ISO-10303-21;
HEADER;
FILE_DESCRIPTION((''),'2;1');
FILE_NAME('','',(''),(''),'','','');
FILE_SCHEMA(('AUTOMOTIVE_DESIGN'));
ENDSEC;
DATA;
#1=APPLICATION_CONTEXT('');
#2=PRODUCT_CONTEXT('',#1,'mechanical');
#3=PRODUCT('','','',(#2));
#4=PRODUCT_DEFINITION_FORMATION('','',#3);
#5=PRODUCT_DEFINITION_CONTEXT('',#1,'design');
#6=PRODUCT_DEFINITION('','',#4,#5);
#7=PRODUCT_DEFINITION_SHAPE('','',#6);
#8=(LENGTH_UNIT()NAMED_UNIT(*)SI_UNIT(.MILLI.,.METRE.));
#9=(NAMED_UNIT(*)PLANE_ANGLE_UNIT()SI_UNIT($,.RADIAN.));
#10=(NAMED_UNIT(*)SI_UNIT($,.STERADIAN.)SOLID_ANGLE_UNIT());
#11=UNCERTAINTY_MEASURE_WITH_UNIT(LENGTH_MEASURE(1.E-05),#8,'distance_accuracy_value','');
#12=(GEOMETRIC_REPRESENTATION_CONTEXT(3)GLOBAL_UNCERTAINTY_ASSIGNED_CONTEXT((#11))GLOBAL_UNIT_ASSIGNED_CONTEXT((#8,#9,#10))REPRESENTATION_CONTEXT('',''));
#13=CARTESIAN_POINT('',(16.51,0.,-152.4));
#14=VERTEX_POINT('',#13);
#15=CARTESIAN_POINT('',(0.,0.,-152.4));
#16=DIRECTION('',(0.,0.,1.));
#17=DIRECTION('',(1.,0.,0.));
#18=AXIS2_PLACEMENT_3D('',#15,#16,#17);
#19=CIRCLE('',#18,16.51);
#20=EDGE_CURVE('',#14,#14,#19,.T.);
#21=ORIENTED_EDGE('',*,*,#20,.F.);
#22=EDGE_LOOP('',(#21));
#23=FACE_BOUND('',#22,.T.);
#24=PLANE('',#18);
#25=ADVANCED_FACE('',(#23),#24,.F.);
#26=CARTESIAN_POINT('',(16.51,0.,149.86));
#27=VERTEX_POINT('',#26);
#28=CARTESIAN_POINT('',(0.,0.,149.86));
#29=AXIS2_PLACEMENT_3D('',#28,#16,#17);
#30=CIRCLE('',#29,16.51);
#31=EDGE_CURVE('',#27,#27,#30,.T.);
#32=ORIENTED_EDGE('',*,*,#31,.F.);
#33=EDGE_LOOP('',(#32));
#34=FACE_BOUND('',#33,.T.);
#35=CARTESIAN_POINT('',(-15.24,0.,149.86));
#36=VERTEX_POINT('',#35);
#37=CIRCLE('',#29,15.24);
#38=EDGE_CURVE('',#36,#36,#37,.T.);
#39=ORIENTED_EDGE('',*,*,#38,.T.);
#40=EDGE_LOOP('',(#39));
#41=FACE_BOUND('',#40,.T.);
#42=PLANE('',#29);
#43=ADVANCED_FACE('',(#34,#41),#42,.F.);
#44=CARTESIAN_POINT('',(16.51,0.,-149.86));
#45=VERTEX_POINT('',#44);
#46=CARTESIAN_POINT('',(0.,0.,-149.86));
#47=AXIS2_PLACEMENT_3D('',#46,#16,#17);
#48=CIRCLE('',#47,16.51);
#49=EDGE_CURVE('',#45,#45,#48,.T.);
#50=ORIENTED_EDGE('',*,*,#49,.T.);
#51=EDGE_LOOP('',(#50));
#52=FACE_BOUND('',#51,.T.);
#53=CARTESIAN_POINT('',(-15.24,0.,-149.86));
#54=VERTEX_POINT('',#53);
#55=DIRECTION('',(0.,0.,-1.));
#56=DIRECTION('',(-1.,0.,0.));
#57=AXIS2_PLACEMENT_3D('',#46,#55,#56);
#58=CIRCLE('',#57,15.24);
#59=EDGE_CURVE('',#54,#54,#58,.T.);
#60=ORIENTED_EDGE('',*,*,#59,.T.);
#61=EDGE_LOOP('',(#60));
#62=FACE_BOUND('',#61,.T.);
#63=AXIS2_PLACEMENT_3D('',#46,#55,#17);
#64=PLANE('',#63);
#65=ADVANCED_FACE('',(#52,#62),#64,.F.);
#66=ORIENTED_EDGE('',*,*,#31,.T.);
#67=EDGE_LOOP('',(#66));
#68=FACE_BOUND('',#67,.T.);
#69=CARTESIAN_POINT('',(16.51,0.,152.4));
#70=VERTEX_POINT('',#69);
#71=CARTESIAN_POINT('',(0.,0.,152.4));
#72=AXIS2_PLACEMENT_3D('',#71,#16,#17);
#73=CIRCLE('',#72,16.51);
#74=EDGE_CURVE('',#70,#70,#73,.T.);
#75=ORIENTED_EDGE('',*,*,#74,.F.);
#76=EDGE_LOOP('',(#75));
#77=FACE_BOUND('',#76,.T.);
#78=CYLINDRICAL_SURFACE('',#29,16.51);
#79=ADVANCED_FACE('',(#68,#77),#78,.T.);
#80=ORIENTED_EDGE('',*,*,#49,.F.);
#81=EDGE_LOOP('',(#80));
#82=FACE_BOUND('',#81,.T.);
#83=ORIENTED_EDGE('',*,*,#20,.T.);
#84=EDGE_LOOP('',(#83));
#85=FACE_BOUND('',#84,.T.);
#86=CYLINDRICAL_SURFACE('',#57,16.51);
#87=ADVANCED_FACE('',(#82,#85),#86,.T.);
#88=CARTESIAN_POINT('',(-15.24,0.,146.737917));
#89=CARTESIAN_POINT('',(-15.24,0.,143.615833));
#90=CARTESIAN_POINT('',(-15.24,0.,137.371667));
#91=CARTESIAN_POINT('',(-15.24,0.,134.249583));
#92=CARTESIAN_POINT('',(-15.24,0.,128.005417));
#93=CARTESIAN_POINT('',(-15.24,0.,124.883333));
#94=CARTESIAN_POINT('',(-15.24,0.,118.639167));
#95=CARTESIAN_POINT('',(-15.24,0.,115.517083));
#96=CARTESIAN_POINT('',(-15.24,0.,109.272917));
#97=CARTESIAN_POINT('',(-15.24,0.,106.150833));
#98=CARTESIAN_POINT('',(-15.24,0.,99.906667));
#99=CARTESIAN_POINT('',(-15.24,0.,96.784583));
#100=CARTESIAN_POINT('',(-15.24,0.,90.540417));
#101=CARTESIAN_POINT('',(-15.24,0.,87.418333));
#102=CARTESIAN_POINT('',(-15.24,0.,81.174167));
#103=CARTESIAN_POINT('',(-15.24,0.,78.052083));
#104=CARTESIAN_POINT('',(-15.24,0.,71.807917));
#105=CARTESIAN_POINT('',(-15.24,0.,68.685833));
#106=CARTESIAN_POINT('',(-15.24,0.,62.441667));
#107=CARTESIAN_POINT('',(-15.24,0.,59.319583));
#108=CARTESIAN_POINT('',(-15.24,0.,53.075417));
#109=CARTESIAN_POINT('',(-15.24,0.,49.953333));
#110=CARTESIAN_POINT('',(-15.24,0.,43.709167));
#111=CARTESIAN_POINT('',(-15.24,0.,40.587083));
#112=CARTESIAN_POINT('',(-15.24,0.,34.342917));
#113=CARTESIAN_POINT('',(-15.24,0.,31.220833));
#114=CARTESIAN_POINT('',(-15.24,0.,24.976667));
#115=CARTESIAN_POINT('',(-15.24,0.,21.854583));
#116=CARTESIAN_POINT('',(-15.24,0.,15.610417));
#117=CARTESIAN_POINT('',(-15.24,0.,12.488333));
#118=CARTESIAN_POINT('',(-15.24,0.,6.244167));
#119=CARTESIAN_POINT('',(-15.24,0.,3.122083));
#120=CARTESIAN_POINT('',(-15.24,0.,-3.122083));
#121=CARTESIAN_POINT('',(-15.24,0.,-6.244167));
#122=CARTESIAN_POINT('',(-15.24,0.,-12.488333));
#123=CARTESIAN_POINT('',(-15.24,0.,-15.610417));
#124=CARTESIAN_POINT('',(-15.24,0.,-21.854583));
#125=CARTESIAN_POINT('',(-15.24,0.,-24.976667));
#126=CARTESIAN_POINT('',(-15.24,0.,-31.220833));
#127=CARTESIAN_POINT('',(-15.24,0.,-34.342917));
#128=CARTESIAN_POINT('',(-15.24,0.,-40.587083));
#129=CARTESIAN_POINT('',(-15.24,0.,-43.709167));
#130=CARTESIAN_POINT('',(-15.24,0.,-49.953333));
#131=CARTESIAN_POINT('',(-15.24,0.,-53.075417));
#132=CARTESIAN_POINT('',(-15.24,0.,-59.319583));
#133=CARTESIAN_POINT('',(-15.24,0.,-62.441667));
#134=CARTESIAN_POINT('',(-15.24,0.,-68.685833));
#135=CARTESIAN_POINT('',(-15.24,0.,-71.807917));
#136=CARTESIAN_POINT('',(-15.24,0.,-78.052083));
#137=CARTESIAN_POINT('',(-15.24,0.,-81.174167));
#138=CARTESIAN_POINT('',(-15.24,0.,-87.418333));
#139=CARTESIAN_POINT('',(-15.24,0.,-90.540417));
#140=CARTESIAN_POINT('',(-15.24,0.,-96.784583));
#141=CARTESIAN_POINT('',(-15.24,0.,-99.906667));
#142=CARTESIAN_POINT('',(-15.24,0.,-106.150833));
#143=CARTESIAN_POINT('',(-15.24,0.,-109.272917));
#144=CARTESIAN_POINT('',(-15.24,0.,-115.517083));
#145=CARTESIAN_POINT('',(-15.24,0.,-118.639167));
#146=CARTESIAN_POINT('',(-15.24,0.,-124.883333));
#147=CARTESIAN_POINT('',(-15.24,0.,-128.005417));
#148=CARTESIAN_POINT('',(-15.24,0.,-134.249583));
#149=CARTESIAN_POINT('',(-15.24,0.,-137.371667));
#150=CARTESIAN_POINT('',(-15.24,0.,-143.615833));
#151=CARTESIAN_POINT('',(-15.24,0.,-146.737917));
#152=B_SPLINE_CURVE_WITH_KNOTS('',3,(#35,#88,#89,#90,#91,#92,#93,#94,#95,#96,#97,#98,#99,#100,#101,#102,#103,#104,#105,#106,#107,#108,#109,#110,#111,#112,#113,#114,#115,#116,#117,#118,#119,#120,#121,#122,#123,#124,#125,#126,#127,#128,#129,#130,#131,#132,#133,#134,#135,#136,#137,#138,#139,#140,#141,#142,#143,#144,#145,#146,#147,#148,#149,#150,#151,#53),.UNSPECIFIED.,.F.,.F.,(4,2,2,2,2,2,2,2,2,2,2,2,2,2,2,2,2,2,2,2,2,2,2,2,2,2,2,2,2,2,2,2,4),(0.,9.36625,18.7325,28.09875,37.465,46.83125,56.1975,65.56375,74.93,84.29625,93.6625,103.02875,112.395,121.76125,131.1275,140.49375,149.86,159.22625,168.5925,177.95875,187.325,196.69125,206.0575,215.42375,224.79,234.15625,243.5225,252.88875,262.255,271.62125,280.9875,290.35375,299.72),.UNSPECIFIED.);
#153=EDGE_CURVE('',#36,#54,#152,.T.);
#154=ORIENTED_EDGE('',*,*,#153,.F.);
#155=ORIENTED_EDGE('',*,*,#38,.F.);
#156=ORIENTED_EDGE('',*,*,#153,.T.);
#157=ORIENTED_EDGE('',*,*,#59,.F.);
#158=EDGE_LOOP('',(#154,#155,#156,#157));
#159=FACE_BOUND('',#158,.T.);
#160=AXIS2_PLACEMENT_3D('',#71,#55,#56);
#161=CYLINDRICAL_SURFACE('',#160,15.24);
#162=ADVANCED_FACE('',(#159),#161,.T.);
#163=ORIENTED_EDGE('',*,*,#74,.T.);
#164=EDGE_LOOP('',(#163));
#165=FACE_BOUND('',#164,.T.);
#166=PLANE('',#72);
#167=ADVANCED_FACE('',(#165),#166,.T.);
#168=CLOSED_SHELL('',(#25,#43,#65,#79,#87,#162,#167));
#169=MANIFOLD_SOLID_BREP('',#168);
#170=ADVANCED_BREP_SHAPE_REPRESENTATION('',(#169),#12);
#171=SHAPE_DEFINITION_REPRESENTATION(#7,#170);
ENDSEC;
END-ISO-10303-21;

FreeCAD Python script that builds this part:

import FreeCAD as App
import Part
import Sketcher
Q = App.Units.Quantity

doc = App.newDocument("Part")
body = doc.addObject("PartDesign::Body", "Body")

sketch1 = body.newObject("Sketcher::SketchObject", "Sketch")
sketch1.AttachmentSupport = (doc.getObject("XY_Plane"), [""])
sketch1.MapMode = "FlatFace"
sketch1.addGeometry(Part.Circle(App.Vector(0, 0, 0), App.Vector(0, 0, 1), 15), False)
sketch1.addConstraint(Sketcher.Constraint("Coincident", 0, 3, -1, 1))
sketch1.addConstraint(Sketcher.Constraint("Diameter", 0, Q("1.2 in")))
pad1 = body.newObject("PartDesign::Pad", "Pad")
pad1.Profile = sketch1
pad1.Length = Q("12 in")
pad1.Midplane = True

sketch2 = body.newObject("Sketcher::SketchObject", "Sketch001")
sketch2.AttachmentSupport = (doc.getObject("XY_Plane"), [""])
sketch2.MapMode = "FlatFace"
sketch2.AttachmentOffset = App.Placement(App.Vector(0, 0, 6 * 25.4), App.Rotation())
sketch2.addGeometry(Part.Circle(App.Vector(0, 0, 0), App.Vector(0, 0, 1), 17), False)
sketch2.addConstraint(Sketcher.Constraint("Coincident", 0, 3, -1, 1))
sketch2.addConstraint(Sketcher.Constraint("Diameter", 0, Q("1.3 in")))
pad2 = body.newObject("PartDesign::Pad", "Pad001")
pad2.Profile = sketch2
pad2.Length = Q("0.1 in")
pad2.Reversed = True
doc.recompute()

mirrored = body.newObject("PartDesign::Mirrored", "Mirrored")
mirrored.Originals = [pad2]
mirrored.MirrorPlane = (doc.getObject("XY_Plane"), [""])
body.Tip = mirrored

doc.recompute()
